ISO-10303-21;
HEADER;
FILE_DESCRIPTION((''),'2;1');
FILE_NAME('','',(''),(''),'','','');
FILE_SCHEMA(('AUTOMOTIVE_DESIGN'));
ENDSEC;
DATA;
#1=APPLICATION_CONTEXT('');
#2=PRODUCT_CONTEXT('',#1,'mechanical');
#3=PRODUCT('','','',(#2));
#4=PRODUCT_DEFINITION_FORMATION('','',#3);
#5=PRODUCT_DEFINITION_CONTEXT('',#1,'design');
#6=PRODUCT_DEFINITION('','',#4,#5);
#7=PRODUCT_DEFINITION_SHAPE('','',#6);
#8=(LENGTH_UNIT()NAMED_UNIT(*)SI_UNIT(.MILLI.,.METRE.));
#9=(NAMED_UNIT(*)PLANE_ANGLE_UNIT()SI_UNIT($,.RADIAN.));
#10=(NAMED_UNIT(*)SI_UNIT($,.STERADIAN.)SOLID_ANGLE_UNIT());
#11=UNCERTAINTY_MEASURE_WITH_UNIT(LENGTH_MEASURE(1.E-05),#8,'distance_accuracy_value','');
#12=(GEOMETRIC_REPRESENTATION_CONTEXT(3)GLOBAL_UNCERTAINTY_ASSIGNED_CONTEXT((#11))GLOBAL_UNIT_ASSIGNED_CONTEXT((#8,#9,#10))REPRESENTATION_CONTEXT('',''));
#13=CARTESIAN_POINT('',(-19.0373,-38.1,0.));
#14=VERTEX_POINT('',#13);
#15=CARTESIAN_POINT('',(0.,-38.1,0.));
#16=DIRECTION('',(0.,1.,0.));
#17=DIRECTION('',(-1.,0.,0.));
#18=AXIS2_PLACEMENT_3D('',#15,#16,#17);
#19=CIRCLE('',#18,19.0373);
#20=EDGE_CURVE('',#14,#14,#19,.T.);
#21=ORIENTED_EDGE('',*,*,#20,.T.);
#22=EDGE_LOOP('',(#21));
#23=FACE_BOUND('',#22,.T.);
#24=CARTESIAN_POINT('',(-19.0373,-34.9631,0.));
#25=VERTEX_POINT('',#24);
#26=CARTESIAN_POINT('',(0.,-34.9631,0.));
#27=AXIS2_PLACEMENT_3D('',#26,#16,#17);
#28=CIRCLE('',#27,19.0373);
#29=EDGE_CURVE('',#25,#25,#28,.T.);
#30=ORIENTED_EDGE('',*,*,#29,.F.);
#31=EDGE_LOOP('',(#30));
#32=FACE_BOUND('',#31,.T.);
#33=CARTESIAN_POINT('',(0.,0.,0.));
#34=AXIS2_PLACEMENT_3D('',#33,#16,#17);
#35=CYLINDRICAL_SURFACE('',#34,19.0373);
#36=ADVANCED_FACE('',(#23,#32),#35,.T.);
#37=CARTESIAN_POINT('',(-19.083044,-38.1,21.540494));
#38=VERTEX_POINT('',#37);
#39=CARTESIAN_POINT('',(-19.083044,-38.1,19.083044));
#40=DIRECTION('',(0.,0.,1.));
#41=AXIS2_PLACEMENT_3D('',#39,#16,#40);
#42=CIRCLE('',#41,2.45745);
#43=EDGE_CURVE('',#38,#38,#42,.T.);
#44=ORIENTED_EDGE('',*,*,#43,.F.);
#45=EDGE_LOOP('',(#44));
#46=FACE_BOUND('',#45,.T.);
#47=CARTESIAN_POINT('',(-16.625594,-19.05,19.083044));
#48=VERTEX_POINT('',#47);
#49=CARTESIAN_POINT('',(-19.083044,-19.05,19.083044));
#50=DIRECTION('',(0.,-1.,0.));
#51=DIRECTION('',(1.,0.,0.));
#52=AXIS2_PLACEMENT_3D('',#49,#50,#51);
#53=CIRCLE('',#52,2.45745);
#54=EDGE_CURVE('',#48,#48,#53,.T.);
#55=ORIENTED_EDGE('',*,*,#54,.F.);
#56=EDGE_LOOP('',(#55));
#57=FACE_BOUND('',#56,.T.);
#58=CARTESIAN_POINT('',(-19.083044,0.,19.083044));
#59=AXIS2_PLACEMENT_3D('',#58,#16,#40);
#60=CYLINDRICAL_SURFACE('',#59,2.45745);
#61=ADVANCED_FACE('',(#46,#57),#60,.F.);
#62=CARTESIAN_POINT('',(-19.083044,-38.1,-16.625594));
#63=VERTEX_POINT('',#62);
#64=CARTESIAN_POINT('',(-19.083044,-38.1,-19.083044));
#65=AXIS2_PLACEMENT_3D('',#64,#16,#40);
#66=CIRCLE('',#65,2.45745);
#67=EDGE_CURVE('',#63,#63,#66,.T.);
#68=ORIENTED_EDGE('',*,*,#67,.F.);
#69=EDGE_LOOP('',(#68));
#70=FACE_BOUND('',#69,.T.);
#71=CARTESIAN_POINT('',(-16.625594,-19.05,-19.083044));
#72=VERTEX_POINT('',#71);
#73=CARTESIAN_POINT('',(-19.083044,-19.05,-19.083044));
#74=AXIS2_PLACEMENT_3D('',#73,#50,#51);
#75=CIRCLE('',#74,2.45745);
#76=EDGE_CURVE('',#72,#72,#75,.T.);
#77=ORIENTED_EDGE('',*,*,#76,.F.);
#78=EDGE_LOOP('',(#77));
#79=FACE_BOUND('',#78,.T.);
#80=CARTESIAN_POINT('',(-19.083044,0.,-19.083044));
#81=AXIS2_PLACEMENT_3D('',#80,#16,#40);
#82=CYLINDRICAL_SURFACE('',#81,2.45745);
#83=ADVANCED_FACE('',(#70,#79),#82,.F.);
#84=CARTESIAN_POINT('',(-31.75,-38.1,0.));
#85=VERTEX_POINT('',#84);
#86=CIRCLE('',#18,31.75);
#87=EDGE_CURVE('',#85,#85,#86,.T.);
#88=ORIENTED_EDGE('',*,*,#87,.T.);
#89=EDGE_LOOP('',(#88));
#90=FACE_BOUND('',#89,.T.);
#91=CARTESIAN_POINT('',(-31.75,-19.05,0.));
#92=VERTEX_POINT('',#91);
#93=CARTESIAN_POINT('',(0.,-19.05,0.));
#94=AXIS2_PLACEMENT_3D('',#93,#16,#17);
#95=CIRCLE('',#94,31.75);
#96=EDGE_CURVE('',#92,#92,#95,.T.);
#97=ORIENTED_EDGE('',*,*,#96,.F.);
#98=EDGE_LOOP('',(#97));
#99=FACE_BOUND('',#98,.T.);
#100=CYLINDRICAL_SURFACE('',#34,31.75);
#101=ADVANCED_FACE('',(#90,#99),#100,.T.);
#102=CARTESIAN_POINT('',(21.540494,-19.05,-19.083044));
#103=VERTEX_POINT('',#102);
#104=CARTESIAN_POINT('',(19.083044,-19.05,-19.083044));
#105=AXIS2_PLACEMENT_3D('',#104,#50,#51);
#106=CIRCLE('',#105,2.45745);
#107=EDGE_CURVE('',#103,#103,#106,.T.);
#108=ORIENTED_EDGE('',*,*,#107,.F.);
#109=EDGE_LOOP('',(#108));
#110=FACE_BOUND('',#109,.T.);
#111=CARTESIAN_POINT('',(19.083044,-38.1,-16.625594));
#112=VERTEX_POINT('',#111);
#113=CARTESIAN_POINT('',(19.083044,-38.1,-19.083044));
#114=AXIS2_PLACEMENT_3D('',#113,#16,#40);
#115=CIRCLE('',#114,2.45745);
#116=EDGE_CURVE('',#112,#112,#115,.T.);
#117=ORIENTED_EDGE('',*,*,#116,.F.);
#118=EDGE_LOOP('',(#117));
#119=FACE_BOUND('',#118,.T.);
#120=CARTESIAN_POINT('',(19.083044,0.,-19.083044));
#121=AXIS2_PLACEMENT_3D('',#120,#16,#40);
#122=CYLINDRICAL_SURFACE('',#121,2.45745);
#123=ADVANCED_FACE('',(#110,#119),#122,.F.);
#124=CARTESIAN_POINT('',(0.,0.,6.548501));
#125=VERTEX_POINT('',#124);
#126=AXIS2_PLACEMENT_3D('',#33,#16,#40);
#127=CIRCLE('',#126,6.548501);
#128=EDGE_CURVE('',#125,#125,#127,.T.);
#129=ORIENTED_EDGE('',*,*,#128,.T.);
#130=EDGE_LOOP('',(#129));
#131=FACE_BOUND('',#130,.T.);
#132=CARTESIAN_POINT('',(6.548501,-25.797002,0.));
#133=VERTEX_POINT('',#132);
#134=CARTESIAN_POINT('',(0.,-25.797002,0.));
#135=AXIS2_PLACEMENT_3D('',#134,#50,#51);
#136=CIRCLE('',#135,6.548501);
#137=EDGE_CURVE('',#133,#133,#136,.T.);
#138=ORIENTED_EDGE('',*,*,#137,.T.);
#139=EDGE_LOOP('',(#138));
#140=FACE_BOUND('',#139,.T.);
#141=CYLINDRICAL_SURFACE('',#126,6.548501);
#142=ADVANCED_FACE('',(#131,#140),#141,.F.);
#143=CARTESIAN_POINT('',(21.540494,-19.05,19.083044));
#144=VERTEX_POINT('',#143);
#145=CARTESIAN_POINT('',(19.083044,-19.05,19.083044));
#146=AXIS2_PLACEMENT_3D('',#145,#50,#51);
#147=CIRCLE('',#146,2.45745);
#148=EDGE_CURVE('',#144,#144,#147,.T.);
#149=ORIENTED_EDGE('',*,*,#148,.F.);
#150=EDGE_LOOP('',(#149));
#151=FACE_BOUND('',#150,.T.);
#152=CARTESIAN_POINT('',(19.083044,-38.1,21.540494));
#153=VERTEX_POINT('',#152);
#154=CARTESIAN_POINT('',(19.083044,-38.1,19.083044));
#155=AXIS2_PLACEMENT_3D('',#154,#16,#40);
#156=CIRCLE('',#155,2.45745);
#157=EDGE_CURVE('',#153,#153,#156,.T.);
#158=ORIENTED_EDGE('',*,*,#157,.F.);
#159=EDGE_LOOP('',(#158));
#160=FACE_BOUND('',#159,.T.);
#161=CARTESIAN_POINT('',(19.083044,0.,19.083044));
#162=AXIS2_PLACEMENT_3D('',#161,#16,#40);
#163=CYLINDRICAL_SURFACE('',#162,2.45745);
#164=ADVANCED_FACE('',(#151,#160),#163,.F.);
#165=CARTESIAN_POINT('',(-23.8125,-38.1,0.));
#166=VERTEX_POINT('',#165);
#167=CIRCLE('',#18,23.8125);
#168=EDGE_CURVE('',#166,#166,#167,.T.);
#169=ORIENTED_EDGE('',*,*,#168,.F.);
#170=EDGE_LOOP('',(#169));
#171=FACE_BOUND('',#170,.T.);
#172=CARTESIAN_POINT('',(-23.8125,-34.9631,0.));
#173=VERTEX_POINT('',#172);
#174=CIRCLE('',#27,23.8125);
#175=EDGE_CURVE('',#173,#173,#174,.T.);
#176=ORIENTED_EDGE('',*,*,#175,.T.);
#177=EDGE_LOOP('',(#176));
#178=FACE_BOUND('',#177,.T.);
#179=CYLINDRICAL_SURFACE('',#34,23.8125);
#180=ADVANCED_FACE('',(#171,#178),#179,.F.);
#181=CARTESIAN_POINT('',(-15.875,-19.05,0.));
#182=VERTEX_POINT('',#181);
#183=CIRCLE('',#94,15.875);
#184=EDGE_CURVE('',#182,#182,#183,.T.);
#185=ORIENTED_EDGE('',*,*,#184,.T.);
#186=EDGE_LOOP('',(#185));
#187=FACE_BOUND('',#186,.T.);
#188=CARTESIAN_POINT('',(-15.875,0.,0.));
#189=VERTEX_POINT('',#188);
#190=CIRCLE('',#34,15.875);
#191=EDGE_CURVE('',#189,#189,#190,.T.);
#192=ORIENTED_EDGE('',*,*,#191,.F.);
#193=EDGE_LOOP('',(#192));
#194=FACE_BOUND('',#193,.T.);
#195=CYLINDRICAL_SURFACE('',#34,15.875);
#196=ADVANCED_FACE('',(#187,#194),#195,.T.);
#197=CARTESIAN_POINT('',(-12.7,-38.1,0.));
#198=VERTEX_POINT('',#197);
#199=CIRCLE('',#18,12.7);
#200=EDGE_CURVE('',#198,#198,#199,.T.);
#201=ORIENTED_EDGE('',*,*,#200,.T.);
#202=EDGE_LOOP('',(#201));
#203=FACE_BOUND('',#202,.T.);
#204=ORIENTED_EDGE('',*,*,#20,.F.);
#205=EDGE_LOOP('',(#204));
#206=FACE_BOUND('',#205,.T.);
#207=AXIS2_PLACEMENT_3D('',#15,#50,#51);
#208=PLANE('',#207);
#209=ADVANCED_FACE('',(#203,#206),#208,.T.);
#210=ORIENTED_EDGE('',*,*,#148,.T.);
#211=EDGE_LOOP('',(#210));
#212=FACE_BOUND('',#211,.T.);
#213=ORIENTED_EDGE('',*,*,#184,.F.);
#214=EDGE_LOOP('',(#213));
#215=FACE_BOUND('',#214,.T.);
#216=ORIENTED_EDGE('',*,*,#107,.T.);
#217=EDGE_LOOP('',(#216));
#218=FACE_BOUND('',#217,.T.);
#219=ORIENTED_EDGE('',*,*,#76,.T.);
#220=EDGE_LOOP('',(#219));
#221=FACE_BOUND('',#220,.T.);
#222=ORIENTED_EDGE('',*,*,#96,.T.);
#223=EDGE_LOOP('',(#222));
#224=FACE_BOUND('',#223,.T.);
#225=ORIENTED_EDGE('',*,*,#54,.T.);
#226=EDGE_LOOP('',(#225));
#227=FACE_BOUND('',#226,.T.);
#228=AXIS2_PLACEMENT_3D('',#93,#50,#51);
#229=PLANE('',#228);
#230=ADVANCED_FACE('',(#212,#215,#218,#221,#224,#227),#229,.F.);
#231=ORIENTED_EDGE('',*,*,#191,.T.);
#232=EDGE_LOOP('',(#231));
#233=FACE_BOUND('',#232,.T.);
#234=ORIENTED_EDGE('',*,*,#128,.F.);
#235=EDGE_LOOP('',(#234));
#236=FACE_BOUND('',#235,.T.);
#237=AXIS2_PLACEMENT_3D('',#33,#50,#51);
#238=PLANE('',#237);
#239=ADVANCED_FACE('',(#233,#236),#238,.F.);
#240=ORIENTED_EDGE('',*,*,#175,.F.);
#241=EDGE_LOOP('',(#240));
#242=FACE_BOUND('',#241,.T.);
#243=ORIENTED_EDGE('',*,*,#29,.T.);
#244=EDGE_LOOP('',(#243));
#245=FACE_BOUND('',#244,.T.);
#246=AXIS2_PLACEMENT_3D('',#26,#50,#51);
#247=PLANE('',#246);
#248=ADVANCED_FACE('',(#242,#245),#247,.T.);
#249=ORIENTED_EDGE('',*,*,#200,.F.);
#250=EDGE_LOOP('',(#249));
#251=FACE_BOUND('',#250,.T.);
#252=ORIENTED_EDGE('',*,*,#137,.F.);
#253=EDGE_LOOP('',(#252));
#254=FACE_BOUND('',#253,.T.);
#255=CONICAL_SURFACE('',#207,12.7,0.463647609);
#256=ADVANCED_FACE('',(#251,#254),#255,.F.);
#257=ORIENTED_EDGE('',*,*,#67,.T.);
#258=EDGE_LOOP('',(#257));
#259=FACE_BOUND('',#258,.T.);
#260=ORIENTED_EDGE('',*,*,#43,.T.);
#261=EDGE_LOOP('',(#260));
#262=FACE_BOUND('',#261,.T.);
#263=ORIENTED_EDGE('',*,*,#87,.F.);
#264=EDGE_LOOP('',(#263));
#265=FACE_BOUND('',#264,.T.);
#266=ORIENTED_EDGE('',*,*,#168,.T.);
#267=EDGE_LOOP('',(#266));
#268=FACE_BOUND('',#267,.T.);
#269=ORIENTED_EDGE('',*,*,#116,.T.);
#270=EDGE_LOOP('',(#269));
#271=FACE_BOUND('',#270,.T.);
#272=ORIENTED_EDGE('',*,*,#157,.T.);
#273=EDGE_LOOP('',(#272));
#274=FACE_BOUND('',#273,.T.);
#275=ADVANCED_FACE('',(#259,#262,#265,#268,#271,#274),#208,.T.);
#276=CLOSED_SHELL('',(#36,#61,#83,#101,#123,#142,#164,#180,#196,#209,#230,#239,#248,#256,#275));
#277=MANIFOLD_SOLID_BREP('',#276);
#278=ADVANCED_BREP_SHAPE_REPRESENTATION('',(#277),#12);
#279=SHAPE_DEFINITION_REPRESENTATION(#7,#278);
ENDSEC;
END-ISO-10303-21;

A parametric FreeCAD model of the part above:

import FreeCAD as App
import Part
import Sketcher

V = App.Vector
Q = App.Units.Quantity

doc = App.newDocument("Part")
body = doc.addObject("PartDesign::Body", "Body")

# Sketch on XY plane
sketch1 = body.newObject("Sketcher::SketchObject", "Sketch")
sketch1.AttachmentSupport = (doc.getObject("XY_Plane"), [""])
sketch1.MapMode = "FlatFace"
sketch1.addGeometry(Part.LineSegment(V(-12.7, -38.1, 0), V(-3.2, -19.1, 0)), False)
sketch1.addGeometry(Part.LineSegment(V(-3.2, -19.1, 0), V(-3.2, 0, 0)), False)
sketch1.addGeometry(Part.LineSegment(V(-3.2, 0, 0), V(-15.9, 0, 0)), False)
sketch1.addGeometry(Part.LineSegment(V(-15.9, 0, 0), V(-15.9, -19.1, 0)), False)
sketch1.addGeometry(Part.LineSegment(V(-15.9, -19.1, 0), V(-31.8, -19.1, 0)), False)
sketch1.addGeometry(Part.LineSegment(V(-31.8, -19.1, 0), V(-31.8, -38.1, 0)), False)
sketch1.addGeometry(Part.LineSegment(V(-31.8, -38.1, 0), V(-23.8, -38.1, 0)), False)
sketch1.addGeometry(Part.LineSegment(V(-23.8, -38.1, 0), V(-23.8, -35, 0)), False)
sketch1.addGeometry(Part.LineSegment(V(-23.8, -35, 0), V(-19, -35, 0)), False)
sketch1.addGeometry(Part.LineSegment(V(-19, -35, 0), V(-19, -38.1, 0)), False)
sketch1.addGeometry(Part.LineSegment(V(-19, -38.1, 0), V(-12.7, -38.1, 0)), False)
sketch1.addConstraint(Sketcher.Constraint("Coincident", 0, 2, 1, 1))
sketch1.addConstraint(Sketcher.Constraint("Coincident", 1, 2, 2, 1))
sketch1.addConstraint(Sketcher.Constraint("Coincident", 2, 2, 3, 1))
sketch1.addConstraint(Sketcher.Constraint("Coincident", 3, 2, 4, 1))
sketch1.addConstraint(Sketcher.Constraint("Coincident", 4, 2, 5, 1))
sketch1.addConstraint(Sketcher.Constraint("Coincident", 5, 2, 6, 1))
sketch1.addConstraint(Sketcher.Constraint("Coincident", 6, 2, 7, 1))
sketch1.addConstraint(Sketcher.Constraint("Coincident", 7, 2, 8, 1))
sketch1.addConstraint(Sketcher.Constraint("Coincident", 8, 2, 9, 1))
sketch1.addConstraint(Sketcher.Constraint("Coincident", 9, 2, 10, 1))
sketch1.addConstraint(Sketcher.Constraint("Coincident", 10, 2, 0, 1))
sketch1.addConstraint(Sketcher.Constraint("Vertical", 1))
sketch1.addConstraint(Sketcher.Constraint("Horizontal", 2))
sketch1.addConstraint(Sketcher.Constraint("Vertical", 3))
sketch1.addConstraint(Sketcher.Constraint("Horizontal", 4))
sketch1.addConstraint(Sketcher.Constraint("Vertical", 5))
sketch1.addConstraint(Sketcher.Constraint("Horizontal", 6))
sketch1.addConstraint(Sketcher.Constraint("Vertical", 7))
sketch1.addConstraint(Sketcher.Constraint("Horizontal", 8))
sketch1.addConstraint(Sketcher.Constraint("Vertical", 9))
sketch1.addConstraint(Sketcher.Constraint("Horizontal", 10))
sketch1.addConstraint(Sketcher.Constraint("PointOnObject", 1, 2, -1))
sketch1.addConstraint(Sketcher.Constraint("Horizontal", 0, 2, 3, 2))
sketch1.addConstraint(Sketcher.Constraint("Horizontal", 6, 2, 9, 2))
sketch1.addConstraint(Sketcher.Constraint("Equal", 3, 5))
sketch1.addConstraint(Sketcher.Constraint("DistanceX", 2, 2, 2, 1, Q("0.5 in")))
sketch1.addConstraint(Sketcher.Constraint("DistanceY", 1, 1, 1, 2, Q("0.75 in")))
sketch1.addConstraint(Sketcher.Constraint("DistanceX", 10, 2, -1, 1, Q("0.5 in")))
sketch1.addConstraint(Sketcher.Constraint("DistanceX", 4, 2, 4, 1, Q("0.625 in")))
sketch1.addConstraint(Sketcher.Constraint("DistanceX", 6, 1, 6, 2, Q("0.3125 in")))
sketch1.addConstraint(Sketcher.Constraint("DistanceX", 8, 1, 8, 2, Q("0.188 in")))
sketch1.addConstraint(Sketcher.Constraint("DistanceX", 4, 2, -1, 1, Q("1.25 in")))
sketch1.addConstraint(Sketcher.Constraint("DistanceY", 7, 1, 7, 2, Q("0.1235 in")))
revolution = body.newObject("PartDesign::Revolution", "Revolution")
revolution.Profile = sketch1
revolution.ReferenceAxis = (sketch1, ["V_Axis"])
revolution.Angle = 360

# Sketch on XZ plane
sketch2 = body.newObject("Sketcher::SketchObject", "Sketch001")
sketch2.AttachmentSupport = (doc.getObject("XZ_Plane"), [""])
sketch2.MapMode = "FlatFace"
sketch2.addGeometry(Part.Circle(V(19.1, -19.1, 0), V(0, 0, 1), 2.5), False)
sketch2.addGeometry(Part.Circle(V(-19.1, -19.1, 0), V(0, 0, 1), 2.5), False)
sketch2.addGeometry(Part.Circle(V(-19.1, 19.1, 0), V(0, 0, 1), 2.5), False)
sketch2.addGeometry(Part.Circle(V(19.1, 19.1, 0), V(0, 0, 1), 2.5), False)
sketch2.addConstraint(Sketcher.Constraint("Equal", 0, 1))
sketch2.addConstraint(Sketcher.Constraint("Equal", 1, 2))
sketch2.addConstraint(Sketcher.Constraint("Equal", 2, 3))
sketch2.addConstraint(Sketcher.Constraint("Symmetric", 0, 3, 2, 3, -1, 1))
sketch2.addConstraint(Sketcher.Constraint("Symmetric", 1, 3, 3, 3, -1, 1))
sketch2.addConstraint(Sketcher.Constraint("Symmetric", 0, 3, 1, 3, -2))
sketch2.addConstraint(Sketcher.Constraint("Diameter", 0, Q("0.1935 in")))
sketch2.addConstraint(Sketcher.Constraint("DistanceX", 1, 3, 0, 3, Q("38.166089 mm")))
sketch2.addConstraint(Sketcher.Constraint("DistanceY", 1, 3, 2, 3, Q("38.166089 mm")))
doc.recompute()
hole = body.newObject("PartDesign::Hole", "Hole")
hole.Profile = sketch2
hole.ThreadType = "None"
hole.Diameter = Q("0.1935 in")
hole.DepthType = "ThroughAll"
hole.Reversed = True

# Sketch on XZ plane
sketch3 = body.newObject("Sketcher::SketchObject", "Sketch002")
sketch3.AttachmentSupport = (doc.getObject("XZ_Plane"), [""])
sketch3.MapMode = "FlatFace"
sketch3.addGeometry(Part.Circle(V(0, 0, 0), V(0, 0, 1), 7), False)
sketch3.addConstraint(Sketcher.Constraint("Coincident", 0, 3, -1, 1))
sketch3.addConstraint(Sketcher.Constraint("Diameter", 0, Q("13.097002 mm")))
doc.recompute()
hole2 = body.newObject("PartDesign::Hole", "Hole001")
hole2.Profile = sketch3
hole2.ThreadType = "None"
hole2.Diameter = 13.097002
hole2.DepthType = "ThroughAll"
hole2.Reversed = True

doc.recompute()
